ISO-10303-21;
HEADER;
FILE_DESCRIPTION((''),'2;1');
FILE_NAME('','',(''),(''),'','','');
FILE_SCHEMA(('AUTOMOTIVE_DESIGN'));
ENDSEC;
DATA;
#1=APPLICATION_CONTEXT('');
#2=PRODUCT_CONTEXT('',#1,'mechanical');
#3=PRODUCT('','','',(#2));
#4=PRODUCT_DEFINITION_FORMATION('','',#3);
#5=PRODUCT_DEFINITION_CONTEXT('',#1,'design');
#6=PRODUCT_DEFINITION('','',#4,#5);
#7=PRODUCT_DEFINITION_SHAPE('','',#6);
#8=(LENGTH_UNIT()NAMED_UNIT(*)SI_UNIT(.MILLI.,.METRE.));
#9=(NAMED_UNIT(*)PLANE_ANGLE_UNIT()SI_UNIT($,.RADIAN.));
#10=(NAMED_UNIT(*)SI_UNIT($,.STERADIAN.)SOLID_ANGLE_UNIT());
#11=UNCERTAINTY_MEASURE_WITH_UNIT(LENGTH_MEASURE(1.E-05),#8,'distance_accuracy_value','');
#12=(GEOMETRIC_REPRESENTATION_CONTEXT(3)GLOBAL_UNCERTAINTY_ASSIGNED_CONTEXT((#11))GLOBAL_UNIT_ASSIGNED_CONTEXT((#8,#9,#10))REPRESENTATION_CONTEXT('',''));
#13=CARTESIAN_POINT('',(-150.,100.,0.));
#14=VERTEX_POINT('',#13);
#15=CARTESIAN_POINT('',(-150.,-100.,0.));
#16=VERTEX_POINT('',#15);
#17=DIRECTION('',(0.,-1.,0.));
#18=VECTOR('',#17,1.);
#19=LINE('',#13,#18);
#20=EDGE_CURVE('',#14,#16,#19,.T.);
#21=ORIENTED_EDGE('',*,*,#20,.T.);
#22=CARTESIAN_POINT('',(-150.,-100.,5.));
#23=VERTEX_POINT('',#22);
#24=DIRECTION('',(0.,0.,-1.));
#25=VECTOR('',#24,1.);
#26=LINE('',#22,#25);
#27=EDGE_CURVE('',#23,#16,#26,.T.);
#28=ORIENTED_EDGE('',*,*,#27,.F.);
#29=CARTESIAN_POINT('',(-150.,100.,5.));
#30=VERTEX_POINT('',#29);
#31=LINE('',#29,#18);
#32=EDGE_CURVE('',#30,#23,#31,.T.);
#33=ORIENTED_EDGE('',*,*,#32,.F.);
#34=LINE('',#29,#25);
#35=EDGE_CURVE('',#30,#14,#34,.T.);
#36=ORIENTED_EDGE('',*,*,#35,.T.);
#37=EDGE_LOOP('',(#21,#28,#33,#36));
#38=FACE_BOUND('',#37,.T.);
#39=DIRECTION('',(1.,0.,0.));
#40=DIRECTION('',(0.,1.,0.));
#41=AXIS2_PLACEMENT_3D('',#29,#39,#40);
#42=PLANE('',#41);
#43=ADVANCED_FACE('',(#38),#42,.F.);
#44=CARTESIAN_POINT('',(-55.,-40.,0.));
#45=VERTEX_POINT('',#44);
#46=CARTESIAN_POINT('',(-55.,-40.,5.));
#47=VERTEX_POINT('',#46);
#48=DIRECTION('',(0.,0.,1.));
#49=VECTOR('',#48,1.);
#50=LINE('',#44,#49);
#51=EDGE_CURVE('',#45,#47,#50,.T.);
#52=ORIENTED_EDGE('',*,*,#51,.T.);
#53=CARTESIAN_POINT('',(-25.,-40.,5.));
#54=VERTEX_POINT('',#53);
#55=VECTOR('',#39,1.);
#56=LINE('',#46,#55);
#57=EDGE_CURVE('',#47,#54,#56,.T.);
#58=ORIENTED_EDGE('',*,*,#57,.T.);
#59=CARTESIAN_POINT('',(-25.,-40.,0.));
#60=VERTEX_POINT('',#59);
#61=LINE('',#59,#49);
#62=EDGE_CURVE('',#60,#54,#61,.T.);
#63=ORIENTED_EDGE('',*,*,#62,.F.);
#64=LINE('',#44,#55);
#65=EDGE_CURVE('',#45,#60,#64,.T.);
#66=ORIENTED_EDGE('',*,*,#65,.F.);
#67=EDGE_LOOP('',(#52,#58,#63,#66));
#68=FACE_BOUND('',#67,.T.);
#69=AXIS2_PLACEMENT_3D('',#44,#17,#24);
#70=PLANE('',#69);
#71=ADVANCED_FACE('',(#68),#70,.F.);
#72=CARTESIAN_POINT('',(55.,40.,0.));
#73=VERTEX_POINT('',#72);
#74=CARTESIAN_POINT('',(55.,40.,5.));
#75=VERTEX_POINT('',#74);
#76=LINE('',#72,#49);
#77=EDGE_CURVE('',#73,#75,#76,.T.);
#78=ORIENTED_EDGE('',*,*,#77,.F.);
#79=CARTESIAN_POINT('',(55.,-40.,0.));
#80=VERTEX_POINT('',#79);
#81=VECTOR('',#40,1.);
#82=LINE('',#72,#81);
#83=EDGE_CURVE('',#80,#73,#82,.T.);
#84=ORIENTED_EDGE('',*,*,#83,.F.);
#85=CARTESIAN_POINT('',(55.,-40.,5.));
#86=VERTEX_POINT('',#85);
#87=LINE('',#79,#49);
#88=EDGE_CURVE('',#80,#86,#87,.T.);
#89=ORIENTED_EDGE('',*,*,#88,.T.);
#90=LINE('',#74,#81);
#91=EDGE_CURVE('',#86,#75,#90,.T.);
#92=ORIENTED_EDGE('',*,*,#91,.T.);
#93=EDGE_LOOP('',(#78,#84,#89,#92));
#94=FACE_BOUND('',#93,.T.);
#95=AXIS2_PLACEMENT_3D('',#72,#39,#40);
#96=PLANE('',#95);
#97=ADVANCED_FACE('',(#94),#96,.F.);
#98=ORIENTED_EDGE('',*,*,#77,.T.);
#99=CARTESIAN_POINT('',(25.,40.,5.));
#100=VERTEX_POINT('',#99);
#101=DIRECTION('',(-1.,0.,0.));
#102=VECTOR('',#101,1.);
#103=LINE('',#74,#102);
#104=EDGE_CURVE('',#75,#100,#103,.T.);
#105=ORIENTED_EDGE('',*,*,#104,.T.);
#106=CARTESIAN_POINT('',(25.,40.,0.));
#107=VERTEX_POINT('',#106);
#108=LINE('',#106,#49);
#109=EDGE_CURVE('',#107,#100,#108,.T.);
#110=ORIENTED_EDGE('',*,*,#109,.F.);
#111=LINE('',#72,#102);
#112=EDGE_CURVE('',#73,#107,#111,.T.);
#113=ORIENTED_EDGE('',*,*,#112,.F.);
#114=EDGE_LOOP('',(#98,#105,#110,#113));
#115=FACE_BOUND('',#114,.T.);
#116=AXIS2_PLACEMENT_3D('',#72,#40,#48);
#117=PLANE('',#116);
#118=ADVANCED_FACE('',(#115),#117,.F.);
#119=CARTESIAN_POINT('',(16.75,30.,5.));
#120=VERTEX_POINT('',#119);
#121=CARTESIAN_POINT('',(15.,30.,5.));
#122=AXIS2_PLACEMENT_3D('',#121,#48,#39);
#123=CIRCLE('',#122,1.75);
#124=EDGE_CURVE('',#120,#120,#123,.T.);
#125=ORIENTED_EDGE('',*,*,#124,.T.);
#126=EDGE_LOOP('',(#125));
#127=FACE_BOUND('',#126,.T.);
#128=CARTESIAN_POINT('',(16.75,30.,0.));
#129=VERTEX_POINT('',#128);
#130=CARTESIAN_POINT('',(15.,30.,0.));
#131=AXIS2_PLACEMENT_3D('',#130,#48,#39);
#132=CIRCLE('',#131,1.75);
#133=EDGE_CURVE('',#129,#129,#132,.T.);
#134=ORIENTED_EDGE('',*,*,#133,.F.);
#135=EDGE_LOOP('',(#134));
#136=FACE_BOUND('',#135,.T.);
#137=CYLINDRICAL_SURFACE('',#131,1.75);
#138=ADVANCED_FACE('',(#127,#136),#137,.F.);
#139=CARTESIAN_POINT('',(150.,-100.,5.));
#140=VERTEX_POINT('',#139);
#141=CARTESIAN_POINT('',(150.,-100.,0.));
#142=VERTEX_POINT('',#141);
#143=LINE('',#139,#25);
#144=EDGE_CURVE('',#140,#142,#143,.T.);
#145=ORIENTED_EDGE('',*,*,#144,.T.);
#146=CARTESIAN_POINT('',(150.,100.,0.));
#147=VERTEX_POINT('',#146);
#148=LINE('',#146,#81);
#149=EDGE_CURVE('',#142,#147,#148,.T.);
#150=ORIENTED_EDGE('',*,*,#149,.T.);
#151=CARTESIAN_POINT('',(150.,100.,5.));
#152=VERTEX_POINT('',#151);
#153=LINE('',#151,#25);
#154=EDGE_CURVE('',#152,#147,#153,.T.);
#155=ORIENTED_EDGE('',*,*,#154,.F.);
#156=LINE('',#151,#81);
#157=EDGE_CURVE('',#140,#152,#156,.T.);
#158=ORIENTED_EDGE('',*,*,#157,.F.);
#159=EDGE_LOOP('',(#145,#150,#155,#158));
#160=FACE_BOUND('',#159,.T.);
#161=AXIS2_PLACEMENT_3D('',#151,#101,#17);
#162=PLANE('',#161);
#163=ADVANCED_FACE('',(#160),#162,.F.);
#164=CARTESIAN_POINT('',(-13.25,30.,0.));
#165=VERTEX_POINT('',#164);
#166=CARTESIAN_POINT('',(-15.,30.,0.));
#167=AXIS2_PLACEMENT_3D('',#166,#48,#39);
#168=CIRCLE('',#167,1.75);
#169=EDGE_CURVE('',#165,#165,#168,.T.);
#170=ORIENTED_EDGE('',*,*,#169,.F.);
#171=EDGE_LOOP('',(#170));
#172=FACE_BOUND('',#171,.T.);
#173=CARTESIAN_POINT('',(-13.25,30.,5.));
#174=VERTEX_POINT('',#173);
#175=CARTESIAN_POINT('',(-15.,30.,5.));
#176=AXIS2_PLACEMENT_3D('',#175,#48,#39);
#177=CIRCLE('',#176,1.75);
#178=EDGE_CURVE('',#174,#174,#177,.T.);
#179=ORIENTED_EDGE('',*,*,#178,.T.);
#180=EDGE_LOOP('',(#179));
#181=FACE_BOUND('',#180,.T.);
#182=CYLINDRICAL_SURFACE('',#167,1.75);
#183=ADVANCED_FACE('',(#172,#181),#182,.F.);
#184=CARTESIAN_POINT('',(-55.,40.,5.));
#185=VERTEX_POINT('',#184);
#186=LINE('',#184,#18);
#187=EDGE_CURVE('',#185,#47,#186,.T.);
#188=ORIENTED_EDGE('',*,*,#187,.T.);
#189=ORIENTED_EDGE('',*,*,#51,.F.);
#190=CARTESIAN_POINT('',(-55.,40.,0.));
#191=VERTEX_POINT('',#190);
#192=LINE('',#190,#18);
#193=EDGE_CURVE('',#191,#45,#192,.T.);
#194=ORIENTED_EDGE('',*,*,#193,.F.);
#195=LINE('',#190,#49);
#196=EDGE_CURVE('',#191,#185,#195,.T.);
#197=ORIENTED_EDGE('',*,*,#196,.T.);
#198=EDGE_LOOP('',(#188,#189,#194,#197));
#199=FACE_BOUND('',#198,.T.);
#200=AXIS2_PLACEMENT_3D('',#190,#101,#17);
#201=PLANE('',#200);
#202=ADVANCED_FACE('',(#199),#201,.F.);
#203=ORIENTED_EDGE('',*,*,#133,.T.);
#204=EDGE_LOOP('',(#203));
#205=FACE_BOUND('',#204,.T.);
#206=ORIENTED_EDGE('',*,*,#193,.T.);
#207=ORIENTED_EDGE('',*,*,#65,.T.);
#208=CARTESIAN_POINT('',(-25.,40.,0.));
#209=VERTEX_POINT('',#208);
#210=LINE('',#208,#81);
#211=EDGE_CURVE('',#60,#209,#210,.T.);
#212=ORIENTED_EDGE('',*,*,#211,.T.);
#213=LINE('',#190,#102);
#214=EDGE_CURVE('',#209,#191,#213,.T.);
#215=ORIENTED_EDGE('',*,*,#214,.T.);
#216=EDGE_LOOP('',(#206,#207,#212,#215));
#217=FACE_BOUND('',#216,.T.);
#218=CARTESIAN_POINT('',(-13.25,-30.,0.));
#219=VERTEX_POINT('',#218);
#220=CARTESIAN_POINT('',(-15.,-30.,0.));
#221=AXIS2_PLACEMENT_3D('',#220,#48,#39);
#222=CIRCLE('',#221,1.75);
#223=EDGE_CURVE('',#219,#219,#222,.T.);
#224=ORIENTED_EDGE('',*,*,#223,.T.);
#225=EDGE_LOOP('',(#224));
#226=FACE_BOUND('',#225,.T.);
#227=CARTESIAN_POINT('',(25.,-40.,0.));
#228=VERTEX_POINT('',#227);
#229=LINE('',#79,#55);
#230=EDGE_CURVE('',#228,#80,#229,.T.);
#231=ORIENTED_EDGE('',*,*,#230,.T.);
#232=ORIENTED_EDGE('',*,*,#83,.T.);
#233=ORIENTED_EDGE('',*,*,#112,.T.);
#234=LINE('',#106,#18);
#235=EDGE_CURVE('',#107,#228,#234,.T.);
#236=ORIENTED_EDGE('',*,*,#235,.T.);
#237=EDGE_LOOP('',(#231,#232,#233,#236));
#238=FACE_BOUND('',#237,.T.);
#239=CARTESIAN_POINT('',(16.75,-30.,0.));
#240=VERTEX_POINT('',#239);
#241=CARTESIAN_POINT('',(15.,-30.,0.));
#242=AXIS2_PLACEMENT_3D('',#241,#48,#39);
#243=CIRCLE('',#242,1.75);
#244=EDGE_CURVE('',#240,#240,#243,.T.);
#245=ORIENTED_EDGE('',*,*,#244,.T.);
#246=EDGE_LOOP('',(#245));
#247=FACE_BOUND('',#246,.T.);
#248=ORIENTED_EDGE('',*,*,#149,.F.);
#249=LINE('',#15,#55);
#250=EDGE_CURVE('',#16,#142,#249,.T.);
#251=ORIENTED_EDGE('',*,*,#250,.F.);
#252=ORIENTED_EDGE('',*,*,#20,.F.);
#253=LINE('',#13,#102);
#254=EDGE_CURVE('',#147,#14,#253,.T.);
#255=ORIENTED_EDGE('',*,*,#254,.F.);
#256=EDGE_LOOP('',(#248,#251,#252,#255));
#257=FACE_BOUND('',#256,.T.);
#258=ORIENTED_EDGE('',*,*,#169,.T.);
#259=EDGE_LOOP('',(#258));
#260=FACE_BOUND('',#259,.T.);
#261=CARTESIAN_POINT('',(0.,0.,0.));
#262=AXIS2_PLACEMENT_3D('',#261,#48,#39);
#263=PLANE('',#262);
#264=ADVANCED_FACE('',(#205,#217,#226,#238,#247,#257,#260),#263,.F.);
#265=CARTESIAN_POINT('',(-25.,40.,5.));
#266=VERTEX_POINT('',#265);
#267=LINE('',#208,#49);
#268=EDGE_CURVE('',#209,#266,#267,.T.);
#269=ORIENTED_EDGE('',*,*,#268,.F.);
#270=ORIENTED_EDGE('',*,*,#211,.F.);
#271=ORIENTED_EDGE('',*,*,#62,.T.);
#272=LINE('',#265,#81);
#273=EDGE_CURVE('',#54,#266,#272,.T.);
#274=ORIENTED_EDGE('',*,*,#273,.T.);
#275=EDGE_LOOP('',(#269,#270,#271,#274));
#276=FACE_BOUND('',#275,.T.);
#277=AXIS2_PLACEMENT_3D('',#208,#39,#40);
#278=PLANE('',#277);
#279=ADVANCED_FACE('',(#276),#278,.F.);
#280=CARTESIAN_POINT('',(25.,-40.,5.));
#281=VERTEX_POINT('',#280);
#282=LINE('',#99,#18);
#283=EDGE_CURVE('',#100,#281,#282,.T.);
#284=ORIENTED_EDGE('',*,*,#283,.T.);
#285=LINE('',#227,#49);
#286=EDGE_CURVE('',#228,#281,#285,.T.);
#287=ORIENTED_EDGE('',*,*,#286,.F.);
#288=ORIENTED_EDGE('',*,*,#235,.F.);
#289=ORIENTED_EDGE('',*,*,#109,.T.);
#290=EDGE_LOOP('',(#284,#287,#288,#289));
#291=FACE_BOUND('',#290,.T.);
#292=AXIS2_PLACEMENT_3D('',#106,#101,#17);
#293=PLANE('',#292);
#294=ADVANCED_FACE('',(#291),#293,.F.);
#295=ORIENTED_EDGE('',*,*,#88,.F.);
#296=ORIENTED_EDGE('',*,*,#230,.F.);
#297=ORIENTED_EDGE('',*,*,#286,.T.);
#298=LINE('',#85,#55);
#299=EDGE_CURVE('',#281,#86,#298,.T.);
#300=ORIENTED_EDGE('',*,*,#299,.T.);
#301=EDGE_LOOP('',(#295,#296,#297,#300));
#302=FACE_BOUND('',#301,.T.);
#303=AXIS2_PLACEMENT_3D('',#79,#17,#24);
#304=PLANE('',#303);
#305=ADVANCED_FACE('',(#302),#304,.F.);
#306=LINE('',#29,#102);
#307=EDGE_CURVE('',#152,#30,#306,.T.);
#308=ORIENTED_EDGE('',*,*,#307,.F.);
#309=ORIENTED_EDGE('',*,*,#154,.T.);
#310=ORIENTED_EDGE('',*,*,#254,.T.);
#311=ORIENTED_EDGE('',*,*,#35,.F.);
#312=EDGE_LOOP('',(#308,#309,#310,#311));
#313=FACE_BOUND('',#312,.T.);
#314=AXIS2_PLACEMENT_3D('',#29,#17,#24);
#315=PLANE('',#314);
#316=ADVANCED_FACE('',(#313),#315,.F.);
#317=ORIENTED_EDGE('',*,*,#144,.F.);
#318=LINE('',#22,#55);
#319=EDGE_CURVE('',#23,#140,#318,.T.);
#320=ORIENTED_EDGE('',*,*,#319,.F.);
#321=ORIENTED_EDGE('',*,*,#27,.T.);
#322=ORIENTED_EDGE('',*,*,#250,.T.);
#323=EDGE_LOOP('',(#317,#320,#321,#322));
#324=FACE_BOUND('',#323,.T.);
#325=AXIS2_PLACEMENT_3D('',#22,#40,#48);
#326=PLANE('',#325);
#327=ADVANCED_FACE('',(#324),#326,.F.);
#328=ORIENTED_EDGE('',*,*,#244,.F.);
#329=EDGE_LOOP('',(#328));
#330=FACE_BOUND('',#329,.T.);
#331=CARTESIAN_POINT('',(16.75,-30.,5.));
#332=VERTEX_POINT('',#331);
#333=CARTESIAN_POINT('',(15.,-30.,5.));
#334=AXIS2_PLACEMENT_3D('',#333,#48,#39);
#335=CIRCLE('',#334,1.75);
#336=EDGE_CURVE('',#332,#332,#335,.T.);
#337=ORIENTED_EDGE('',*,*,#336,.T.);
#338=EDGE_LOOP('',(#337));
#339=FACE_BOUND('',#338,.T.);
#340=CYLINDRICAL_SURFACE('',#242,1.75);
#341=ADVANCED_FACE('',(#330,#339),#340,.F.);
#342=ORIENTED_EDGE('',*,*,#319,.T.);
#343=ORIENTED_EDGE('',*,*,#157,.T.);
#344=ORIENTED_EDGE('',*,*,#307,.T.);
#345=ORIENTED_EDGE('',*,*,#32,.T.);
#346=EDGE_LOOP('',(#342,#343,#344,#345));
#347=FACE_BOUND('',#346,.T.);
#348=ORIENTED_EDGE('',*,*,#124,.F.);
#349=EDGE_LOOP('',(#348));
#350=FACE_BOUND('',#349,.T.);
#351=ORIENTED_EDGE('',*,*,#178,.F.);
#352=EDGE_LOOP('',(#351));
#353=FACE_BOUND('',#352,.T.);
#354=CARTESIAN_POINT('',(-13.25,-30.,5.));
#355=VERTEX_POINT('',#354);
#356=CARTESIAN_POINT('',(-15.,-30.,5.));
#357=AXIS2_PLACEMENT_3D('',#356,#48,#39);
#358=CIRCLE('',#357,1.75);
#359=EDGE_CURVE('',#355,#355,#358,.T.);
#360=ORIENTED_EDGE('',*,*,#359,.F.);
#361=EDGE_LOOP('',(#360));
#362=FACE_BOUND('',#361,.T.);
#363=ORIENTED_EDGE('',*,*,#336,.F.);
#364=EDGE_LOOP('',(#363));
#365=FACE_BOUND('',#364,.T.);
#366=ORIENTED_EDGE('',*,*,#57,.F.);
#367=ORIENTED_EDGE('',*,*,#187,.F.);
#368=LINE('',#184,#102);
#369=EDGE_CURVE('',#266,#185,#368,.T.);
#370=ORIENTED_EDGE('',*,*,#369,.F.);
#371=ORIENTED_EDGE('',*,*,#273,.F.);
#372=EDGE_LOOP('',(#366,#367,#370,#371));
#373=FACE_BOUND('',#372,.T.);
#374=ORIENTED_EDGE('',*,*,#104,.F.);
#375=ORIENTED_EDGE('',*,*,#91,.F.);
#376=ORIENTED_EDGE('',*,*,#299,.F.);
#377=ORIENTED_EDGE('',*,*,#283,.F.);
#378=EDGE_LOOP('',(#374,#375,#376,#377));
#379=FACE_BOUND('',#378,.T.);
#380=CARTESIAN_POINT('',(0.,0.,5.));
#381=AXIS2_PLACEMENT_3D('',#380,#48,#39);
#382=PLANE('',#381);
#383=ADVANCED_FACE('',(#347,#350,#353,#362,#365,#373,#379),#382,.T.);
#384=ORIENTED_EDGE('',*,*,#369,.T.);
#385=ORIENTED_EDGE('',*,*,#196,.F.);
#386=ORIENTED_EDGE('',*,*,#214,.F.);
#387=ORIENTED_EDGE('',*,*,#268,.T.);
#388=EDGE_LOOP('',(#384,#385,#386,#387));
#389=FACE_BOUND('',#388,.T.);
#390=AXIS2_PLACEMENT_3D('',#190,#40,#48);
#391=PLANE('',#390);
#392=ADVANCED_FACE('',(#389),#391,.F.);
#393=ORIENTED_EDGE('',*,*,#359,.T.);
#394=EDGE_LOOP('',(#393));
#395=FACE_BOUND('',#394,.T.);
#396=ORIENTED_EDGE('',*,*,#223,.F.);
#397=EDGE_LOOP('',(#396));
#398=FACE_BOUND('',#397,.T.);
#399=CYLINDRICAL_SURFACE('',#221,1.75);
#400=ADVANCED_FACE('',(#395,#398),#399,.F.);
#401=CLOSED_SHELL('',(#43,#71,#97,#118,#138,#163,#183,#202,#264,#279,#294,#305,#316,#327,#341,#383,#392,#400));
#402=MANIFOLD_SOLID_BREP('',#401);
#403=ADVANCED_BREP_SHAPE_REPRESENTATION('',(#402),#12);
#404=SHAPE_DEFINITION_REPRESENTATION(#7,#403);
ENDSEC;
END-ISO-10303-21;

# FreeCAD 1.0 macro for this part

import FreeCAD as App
import Part
import Sketcher
from FreeCAD import Vector
Q = App.Units.Quantity


def add_polygon(sketch, points):
    """Adds a closed chain of lines whose ends are joined by coincident constraints."""
    first, n = sketch.GeometryCount, len(points)
    for a, b in zip(points, points[1:] + points[:1]):
        sketch.addGeometry(Part.LineSegment(App.Vector(*a, 0), App.Vector(*b, 0)), False)
    for i in range(n):
        sketch.addConstraint(Sketcher.Constraint("Coincident", first + i, 2, first + (i + 1) % n, 1))

doc = App.newDocument("Part")
body = doc.addObject("PartDesign::Body", "Body")

sketch1 = body.newObject("Sketcher::SketchObject", "Sketch")
sketch1.AttachmentSupport = (doc.getObject("XY_Plane"), [""])
sketch1.MapMode = "FlatFace"
add_polygon(sketch1, [(-150, 100), (-150, -100), (150, -100), (150, 100)])
sketch1.addConstraint(Sketcher.Constraint("Vertical", 0))
sketch1.addConstraint(Sketcher.Constraint("Horizontal", 1))
sketch1.addConstraint(Sketcher.Constraint("Vertical", 2))
sketch1.addConstraint(Sketcher.Constraint("Horizontal", 3))
sketch1.addConstraint(Sketcher.Constraint("Symmetric", 0, 2, 2, 2, -1, 1))
sketch1.addConstraint(Sketcher.Constraint("DistanceX", 1, 1, 1, 2, Q("300 mm")))
sketch1.addConstraint(Sketcher.Constraint("DistanceY", 0, 2, 0, 1, Q("200 mm")))
pad1 = body.newObject("PartDesign::Pad", "Pad")
pad1.Profile = sketch1
pad1.Length = 5

sketch2 = body.newObject("Sketcher::SketchObject", "Sketch001")
sketch2.AttachmentSupport = (doc.getObject("XY_Plane"), [""])
sketch2.MapMode = "FlatFace"
sketch2.AttachmentOffset = App.Placement(Vector(0, 0, 5), App.Rotation())
sketch2.addGeometry(Part.Circle(Vector(15, 30, 0), Vector(0, 0, 1), 1.8), False)
sketch2.addGeometry(Part.Circle(Vector(-15, 30, 0), Vector(0, 0, 1), 1.8), False)
sketch2.addGeometry(Part.Circle(Vector(-15, -30, 0), Vector(0, 0, 1), 1.8), False)
sketch2.addGeometry(Part.Circle(Vector(15, -30, 0), Vector(0, 0, 1), 1.8), False)
add_polygon(sketch2, [(25, 40), (25, -40), (55, -40), (55, 40)])
add_polygon(sketch2, [(-55, 40), (-55, -40), (-25, -40), (-25, 40)])
sketch2.addConstraint(Sketcher.Constraint("Vertical", 4))
sketch2.addConstraint(Sketcher.Constraint("Horizontal", 5))
sketch2.addConstraint(Sketcher.Constraint("Vertical", 6))
sketch2.addConstraint(Sketcher.Constraint("Horizontal", 7))
sketch2.addConstraint(Sketcher.Constraint("Vertical", 8))
sketch2.addConstraint(Sketcher.Constraint("Horizontal", 9))
sketch2.addConstraint(Sketcher.Constraint("Vertical", 10))
sketch2.addConstraint(Sketcher.Constraint("Horizontal", 11))
sketch2.addConstraint(Sketcher.Constraint("Equal", 0, 1))
sketch2.addConstraint(Sketcher.Constraint("Equal", 1, 2))
sketch2.addConstraint(Sketcher.Constraint("Equal", 2, 3))
sketch2.addConstraint(Sketcher.Constraint("Symmetric", 0, 3, 2, 3, -1, 1))
sketch2.addConstraint(Sketcher.Constraint("Symmetric", 1, 3, 3, 3, -1, 1))
sketch2.addConstraint(Sketcher.Constraint("Symmetric", 6, 2, 8, 2, -1, 1))
sketch2.addConstraint(Sketcher.Constraint("Symmetric", 4, 2, 10, 2, -1, 1))
sketch2.addConstraint(Sketcher.Constraint("Symmetric", 0, 3, 1, 3, -2))
sketch2.addConstraint(Sketcher.Constraint("Horizontal", 5, 2, 8, 2))
sketch2.addConstraint(Sketcher.Constraint("Diameter", 0, Q("3.5 mm")))
sketch2.addConstraint(Sketcher.Constraint("DistanceX", 5, 1, 5, 2, Q("30 mm")))
sketch2.addConstraint(Sketcher.Constraint("DistanceY", 4, 2, 4, 1, Q("80 mm")))
sketch2.addConstraint(Sketcher.Constraint("DistanceX", -1, 1, 0, 3, Q("15 mm")))
sketch2.addConstraint(Sketcher.Constraint("DistanceY", -1, 1, 0, 3, Q("30 mm")))
sketch2.addConstraint(Sketcher.Constraint("DistanceX", -1, 1, 4, 2, Q("25 mm")))
pocket1 = body.newObject("PartDesign::Pocket", "Pocket")
pocket1.Profile = sketch2
pocket1.Type = "ThroughAll"

doc.recompute()
